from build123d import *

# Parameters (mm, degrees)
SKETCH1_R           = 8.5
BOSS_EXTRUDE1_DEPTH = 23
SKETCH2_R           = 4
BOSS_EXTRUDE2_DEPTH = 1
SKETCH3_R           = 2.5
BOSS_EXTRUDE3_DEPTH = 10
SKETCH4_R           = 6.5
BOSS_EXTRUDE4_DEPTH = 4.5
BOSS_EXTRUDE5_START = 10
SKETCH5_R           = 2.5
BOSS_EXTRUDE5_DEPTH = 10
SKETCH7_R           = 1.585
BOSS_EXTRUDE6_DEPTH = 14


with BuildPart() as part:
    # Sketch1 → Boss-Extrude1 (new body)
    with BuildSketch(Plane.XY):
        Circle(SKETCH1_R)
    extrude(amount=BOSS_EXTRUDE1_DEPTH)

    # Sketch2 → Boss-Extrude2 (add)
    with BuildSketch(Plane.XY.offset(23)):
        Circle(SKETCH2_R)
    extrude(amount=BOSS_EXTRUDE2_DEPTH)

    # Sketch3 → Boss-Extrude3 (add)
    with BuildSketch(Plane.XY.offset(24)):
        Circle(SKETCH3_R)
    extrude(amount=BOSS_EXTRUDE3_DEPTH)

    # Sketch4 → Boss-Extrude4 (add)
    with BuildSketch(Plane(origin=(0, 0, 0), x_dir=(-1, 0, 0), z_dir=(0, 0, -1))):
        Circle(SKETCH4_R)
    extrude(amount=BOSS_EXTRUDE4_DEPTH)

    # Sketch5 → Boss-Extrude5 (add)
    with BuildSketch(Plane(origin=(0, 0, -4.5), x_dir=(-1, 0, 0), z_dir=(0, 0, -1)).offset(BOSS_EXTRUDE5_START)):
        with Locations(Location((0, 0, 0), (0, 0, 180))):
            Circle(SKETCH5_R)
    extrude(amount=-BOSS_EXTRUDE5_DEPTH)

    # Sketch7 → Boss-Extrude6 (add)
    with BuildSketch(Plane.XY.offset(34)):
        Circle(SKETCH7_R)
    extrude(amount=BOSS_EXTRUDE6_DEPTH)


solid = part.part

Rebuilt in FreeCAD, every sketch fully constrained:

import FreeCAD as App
import Part
import Sketcher
Q = App.Units.Quantity

doc = App.newDocument("Part")
body = doc.addObject("PartDesign::Body", "Body")

# Sketch on XY plane
sketch1 = body.newObject("Sketcher::SketchObject", "Sketch")
sketch1.AttachmentSupport = (doc.getObject("XY_Plane"), [""])
sketch1.MapMode = "FlatFace"
sketch1.addGeometry(Part.Circle(App.Vector(0, 0, 0), App.Vector(0, 0, 1), 8.5), False)
sketch1.addConstraint([
    Sketcher.Constraint("Coincident", 0, 3, -1, 1),
    Sketcher.Constraint("Diameter", 0, Q("17 mm")),
])
pad1 = body.newObject("PartDesign::Pad", "Pad")
pad1.Profile = sketch1
pad1.Length = 23

# Sketch on XY plane
sketch2 = body.newObject("Sketcher::SketchObject", "Sketch001")
sketch2.AttachmentSupport = (doc.getObject("XY_Plane"), [""])
sketch2.MapMode = "FlatFace"
sketch2.AttachmentOffset = App.Placement(App.Vector(0, 0, 23), App.Rotation())
sketch2.addGeometry(Part.Circle(App.Vector(0, 0, 0), App.Vector(0, 0, 1), 4), False)
sketch2.addConstraint([
    Sketcher.Constraint("Coincident", 0, 3, -1, 1),
    Sketcher.Constraint("Diameter", 0, Q("8 mm")),
])
pad2 = body.newObject("PartDesign::Pad", "Pad001")
pad2.Profile = sketch2
pad2.Length = 1

# Sketch on XY plane
sketch3 = body.newObject("Sketcher::SketchObject", "Sketch002")
sketch3.AttachmentSupport = (doc.getObject("XY_Plane"), [""])
sketch3.MapMode = "FlatFace"
sketch3.AttachmentOffset = App.Placement(App.Vector(0, 0, 24), App.Rotation())
sketch3.addGeometry(Part.Circle(App.Vector(0, 0, 0), App.Vector(0, 0, 1), 2.5), False)
sketch3.addConstraint([
    Sketcher.Constraint("Coincident", 0, 3, -1, 1),
    Sketcher.Constraint("Diameter", 0, Q("5 mm")),
])
pad3 = body.newObject("PartDesign::Pad", "Pad002")
pad3.Profile = sketch3
pad3.Length = 10

# Sketch on XY plane
sketch4 = body.newObject("Sketcher::SketchObject", "Sketch003")
sketch4.AttachmentSupport = (doc.getObject("XY_Plane"), [""])
sketch4.MapMode = "FlatFace"
sketch4.addGeometry(Part.Circle(App.Vector(0, 0, 0), App.Vector(0, 0, 1), 6.5), False)
sketch4.addConstraint([
    Sketcher.Constraint("Coincident", 0, 3, -1, 1),
    Sketcher.Constraint("Diameter", 0, Q("13 mm")),
])
pad4 = body.newObject("PartDesign::Pad", "Pad003")
pad4.Profile = sketch4
pad4.Length = 4.5
pad4.Reversed = True

# Sketch on XY plane
sketch5 = body.newObject("Sketcher::SketchObject", "Sketch004")
sketch5.AttachmentSupport = (doc.getObject("XY_Plane"), [""])
sketch5.MapMode = "FlatFace"
sketch5.AttachmentOffset = App.Placement(App.Vector(0, 0, -14.5), App.Rotation())
sketch5.addGeometry(Part.Circle(App.Vector(0, 0, 0), App.Vector(0, 0, 1), 2.5), False)
sketch5.addConstraint([
    Sketcher.Constraint("Coincident", 0, 3, -1, 1),
    Sketcher.Constraint("Diameter", 0, Q("5 mm")),
])
pad5 = body.newObject("PartDesign::Pad", "Pad004")
pad5.Profile = sketch5
pad5.Length = 10

# Sketch on XY plane
sketch6 = body.newObject("Sketcher::SketchObject", "Sketch005")
sketch6.AttachmentSupport = (doc.getObject("XY_Plane"), [""])
sketch6.MapMode = "FlatFace"
sketch6.AttachmentOffset = App.Placement(App.Vector(0, 0, 34), App.Rotation())
sketch6.addGeometry(Part.Circle(App.Vector(0, 0, 0), App.Vector(0, 0, 1), 1.585), False)
sketch6.addConstraint([
    Sketcher.Constraint("Coincident", 0, 3, -1, 1),
    Sketcher.Constraint("Diameter", 0, Q("3.17 mm")),
])
pad6 = body.newObject("PartDesign::Pad", "Pad005")
pad6.Profile = sketch6
pad6.Length = 14

doc.recompute()
